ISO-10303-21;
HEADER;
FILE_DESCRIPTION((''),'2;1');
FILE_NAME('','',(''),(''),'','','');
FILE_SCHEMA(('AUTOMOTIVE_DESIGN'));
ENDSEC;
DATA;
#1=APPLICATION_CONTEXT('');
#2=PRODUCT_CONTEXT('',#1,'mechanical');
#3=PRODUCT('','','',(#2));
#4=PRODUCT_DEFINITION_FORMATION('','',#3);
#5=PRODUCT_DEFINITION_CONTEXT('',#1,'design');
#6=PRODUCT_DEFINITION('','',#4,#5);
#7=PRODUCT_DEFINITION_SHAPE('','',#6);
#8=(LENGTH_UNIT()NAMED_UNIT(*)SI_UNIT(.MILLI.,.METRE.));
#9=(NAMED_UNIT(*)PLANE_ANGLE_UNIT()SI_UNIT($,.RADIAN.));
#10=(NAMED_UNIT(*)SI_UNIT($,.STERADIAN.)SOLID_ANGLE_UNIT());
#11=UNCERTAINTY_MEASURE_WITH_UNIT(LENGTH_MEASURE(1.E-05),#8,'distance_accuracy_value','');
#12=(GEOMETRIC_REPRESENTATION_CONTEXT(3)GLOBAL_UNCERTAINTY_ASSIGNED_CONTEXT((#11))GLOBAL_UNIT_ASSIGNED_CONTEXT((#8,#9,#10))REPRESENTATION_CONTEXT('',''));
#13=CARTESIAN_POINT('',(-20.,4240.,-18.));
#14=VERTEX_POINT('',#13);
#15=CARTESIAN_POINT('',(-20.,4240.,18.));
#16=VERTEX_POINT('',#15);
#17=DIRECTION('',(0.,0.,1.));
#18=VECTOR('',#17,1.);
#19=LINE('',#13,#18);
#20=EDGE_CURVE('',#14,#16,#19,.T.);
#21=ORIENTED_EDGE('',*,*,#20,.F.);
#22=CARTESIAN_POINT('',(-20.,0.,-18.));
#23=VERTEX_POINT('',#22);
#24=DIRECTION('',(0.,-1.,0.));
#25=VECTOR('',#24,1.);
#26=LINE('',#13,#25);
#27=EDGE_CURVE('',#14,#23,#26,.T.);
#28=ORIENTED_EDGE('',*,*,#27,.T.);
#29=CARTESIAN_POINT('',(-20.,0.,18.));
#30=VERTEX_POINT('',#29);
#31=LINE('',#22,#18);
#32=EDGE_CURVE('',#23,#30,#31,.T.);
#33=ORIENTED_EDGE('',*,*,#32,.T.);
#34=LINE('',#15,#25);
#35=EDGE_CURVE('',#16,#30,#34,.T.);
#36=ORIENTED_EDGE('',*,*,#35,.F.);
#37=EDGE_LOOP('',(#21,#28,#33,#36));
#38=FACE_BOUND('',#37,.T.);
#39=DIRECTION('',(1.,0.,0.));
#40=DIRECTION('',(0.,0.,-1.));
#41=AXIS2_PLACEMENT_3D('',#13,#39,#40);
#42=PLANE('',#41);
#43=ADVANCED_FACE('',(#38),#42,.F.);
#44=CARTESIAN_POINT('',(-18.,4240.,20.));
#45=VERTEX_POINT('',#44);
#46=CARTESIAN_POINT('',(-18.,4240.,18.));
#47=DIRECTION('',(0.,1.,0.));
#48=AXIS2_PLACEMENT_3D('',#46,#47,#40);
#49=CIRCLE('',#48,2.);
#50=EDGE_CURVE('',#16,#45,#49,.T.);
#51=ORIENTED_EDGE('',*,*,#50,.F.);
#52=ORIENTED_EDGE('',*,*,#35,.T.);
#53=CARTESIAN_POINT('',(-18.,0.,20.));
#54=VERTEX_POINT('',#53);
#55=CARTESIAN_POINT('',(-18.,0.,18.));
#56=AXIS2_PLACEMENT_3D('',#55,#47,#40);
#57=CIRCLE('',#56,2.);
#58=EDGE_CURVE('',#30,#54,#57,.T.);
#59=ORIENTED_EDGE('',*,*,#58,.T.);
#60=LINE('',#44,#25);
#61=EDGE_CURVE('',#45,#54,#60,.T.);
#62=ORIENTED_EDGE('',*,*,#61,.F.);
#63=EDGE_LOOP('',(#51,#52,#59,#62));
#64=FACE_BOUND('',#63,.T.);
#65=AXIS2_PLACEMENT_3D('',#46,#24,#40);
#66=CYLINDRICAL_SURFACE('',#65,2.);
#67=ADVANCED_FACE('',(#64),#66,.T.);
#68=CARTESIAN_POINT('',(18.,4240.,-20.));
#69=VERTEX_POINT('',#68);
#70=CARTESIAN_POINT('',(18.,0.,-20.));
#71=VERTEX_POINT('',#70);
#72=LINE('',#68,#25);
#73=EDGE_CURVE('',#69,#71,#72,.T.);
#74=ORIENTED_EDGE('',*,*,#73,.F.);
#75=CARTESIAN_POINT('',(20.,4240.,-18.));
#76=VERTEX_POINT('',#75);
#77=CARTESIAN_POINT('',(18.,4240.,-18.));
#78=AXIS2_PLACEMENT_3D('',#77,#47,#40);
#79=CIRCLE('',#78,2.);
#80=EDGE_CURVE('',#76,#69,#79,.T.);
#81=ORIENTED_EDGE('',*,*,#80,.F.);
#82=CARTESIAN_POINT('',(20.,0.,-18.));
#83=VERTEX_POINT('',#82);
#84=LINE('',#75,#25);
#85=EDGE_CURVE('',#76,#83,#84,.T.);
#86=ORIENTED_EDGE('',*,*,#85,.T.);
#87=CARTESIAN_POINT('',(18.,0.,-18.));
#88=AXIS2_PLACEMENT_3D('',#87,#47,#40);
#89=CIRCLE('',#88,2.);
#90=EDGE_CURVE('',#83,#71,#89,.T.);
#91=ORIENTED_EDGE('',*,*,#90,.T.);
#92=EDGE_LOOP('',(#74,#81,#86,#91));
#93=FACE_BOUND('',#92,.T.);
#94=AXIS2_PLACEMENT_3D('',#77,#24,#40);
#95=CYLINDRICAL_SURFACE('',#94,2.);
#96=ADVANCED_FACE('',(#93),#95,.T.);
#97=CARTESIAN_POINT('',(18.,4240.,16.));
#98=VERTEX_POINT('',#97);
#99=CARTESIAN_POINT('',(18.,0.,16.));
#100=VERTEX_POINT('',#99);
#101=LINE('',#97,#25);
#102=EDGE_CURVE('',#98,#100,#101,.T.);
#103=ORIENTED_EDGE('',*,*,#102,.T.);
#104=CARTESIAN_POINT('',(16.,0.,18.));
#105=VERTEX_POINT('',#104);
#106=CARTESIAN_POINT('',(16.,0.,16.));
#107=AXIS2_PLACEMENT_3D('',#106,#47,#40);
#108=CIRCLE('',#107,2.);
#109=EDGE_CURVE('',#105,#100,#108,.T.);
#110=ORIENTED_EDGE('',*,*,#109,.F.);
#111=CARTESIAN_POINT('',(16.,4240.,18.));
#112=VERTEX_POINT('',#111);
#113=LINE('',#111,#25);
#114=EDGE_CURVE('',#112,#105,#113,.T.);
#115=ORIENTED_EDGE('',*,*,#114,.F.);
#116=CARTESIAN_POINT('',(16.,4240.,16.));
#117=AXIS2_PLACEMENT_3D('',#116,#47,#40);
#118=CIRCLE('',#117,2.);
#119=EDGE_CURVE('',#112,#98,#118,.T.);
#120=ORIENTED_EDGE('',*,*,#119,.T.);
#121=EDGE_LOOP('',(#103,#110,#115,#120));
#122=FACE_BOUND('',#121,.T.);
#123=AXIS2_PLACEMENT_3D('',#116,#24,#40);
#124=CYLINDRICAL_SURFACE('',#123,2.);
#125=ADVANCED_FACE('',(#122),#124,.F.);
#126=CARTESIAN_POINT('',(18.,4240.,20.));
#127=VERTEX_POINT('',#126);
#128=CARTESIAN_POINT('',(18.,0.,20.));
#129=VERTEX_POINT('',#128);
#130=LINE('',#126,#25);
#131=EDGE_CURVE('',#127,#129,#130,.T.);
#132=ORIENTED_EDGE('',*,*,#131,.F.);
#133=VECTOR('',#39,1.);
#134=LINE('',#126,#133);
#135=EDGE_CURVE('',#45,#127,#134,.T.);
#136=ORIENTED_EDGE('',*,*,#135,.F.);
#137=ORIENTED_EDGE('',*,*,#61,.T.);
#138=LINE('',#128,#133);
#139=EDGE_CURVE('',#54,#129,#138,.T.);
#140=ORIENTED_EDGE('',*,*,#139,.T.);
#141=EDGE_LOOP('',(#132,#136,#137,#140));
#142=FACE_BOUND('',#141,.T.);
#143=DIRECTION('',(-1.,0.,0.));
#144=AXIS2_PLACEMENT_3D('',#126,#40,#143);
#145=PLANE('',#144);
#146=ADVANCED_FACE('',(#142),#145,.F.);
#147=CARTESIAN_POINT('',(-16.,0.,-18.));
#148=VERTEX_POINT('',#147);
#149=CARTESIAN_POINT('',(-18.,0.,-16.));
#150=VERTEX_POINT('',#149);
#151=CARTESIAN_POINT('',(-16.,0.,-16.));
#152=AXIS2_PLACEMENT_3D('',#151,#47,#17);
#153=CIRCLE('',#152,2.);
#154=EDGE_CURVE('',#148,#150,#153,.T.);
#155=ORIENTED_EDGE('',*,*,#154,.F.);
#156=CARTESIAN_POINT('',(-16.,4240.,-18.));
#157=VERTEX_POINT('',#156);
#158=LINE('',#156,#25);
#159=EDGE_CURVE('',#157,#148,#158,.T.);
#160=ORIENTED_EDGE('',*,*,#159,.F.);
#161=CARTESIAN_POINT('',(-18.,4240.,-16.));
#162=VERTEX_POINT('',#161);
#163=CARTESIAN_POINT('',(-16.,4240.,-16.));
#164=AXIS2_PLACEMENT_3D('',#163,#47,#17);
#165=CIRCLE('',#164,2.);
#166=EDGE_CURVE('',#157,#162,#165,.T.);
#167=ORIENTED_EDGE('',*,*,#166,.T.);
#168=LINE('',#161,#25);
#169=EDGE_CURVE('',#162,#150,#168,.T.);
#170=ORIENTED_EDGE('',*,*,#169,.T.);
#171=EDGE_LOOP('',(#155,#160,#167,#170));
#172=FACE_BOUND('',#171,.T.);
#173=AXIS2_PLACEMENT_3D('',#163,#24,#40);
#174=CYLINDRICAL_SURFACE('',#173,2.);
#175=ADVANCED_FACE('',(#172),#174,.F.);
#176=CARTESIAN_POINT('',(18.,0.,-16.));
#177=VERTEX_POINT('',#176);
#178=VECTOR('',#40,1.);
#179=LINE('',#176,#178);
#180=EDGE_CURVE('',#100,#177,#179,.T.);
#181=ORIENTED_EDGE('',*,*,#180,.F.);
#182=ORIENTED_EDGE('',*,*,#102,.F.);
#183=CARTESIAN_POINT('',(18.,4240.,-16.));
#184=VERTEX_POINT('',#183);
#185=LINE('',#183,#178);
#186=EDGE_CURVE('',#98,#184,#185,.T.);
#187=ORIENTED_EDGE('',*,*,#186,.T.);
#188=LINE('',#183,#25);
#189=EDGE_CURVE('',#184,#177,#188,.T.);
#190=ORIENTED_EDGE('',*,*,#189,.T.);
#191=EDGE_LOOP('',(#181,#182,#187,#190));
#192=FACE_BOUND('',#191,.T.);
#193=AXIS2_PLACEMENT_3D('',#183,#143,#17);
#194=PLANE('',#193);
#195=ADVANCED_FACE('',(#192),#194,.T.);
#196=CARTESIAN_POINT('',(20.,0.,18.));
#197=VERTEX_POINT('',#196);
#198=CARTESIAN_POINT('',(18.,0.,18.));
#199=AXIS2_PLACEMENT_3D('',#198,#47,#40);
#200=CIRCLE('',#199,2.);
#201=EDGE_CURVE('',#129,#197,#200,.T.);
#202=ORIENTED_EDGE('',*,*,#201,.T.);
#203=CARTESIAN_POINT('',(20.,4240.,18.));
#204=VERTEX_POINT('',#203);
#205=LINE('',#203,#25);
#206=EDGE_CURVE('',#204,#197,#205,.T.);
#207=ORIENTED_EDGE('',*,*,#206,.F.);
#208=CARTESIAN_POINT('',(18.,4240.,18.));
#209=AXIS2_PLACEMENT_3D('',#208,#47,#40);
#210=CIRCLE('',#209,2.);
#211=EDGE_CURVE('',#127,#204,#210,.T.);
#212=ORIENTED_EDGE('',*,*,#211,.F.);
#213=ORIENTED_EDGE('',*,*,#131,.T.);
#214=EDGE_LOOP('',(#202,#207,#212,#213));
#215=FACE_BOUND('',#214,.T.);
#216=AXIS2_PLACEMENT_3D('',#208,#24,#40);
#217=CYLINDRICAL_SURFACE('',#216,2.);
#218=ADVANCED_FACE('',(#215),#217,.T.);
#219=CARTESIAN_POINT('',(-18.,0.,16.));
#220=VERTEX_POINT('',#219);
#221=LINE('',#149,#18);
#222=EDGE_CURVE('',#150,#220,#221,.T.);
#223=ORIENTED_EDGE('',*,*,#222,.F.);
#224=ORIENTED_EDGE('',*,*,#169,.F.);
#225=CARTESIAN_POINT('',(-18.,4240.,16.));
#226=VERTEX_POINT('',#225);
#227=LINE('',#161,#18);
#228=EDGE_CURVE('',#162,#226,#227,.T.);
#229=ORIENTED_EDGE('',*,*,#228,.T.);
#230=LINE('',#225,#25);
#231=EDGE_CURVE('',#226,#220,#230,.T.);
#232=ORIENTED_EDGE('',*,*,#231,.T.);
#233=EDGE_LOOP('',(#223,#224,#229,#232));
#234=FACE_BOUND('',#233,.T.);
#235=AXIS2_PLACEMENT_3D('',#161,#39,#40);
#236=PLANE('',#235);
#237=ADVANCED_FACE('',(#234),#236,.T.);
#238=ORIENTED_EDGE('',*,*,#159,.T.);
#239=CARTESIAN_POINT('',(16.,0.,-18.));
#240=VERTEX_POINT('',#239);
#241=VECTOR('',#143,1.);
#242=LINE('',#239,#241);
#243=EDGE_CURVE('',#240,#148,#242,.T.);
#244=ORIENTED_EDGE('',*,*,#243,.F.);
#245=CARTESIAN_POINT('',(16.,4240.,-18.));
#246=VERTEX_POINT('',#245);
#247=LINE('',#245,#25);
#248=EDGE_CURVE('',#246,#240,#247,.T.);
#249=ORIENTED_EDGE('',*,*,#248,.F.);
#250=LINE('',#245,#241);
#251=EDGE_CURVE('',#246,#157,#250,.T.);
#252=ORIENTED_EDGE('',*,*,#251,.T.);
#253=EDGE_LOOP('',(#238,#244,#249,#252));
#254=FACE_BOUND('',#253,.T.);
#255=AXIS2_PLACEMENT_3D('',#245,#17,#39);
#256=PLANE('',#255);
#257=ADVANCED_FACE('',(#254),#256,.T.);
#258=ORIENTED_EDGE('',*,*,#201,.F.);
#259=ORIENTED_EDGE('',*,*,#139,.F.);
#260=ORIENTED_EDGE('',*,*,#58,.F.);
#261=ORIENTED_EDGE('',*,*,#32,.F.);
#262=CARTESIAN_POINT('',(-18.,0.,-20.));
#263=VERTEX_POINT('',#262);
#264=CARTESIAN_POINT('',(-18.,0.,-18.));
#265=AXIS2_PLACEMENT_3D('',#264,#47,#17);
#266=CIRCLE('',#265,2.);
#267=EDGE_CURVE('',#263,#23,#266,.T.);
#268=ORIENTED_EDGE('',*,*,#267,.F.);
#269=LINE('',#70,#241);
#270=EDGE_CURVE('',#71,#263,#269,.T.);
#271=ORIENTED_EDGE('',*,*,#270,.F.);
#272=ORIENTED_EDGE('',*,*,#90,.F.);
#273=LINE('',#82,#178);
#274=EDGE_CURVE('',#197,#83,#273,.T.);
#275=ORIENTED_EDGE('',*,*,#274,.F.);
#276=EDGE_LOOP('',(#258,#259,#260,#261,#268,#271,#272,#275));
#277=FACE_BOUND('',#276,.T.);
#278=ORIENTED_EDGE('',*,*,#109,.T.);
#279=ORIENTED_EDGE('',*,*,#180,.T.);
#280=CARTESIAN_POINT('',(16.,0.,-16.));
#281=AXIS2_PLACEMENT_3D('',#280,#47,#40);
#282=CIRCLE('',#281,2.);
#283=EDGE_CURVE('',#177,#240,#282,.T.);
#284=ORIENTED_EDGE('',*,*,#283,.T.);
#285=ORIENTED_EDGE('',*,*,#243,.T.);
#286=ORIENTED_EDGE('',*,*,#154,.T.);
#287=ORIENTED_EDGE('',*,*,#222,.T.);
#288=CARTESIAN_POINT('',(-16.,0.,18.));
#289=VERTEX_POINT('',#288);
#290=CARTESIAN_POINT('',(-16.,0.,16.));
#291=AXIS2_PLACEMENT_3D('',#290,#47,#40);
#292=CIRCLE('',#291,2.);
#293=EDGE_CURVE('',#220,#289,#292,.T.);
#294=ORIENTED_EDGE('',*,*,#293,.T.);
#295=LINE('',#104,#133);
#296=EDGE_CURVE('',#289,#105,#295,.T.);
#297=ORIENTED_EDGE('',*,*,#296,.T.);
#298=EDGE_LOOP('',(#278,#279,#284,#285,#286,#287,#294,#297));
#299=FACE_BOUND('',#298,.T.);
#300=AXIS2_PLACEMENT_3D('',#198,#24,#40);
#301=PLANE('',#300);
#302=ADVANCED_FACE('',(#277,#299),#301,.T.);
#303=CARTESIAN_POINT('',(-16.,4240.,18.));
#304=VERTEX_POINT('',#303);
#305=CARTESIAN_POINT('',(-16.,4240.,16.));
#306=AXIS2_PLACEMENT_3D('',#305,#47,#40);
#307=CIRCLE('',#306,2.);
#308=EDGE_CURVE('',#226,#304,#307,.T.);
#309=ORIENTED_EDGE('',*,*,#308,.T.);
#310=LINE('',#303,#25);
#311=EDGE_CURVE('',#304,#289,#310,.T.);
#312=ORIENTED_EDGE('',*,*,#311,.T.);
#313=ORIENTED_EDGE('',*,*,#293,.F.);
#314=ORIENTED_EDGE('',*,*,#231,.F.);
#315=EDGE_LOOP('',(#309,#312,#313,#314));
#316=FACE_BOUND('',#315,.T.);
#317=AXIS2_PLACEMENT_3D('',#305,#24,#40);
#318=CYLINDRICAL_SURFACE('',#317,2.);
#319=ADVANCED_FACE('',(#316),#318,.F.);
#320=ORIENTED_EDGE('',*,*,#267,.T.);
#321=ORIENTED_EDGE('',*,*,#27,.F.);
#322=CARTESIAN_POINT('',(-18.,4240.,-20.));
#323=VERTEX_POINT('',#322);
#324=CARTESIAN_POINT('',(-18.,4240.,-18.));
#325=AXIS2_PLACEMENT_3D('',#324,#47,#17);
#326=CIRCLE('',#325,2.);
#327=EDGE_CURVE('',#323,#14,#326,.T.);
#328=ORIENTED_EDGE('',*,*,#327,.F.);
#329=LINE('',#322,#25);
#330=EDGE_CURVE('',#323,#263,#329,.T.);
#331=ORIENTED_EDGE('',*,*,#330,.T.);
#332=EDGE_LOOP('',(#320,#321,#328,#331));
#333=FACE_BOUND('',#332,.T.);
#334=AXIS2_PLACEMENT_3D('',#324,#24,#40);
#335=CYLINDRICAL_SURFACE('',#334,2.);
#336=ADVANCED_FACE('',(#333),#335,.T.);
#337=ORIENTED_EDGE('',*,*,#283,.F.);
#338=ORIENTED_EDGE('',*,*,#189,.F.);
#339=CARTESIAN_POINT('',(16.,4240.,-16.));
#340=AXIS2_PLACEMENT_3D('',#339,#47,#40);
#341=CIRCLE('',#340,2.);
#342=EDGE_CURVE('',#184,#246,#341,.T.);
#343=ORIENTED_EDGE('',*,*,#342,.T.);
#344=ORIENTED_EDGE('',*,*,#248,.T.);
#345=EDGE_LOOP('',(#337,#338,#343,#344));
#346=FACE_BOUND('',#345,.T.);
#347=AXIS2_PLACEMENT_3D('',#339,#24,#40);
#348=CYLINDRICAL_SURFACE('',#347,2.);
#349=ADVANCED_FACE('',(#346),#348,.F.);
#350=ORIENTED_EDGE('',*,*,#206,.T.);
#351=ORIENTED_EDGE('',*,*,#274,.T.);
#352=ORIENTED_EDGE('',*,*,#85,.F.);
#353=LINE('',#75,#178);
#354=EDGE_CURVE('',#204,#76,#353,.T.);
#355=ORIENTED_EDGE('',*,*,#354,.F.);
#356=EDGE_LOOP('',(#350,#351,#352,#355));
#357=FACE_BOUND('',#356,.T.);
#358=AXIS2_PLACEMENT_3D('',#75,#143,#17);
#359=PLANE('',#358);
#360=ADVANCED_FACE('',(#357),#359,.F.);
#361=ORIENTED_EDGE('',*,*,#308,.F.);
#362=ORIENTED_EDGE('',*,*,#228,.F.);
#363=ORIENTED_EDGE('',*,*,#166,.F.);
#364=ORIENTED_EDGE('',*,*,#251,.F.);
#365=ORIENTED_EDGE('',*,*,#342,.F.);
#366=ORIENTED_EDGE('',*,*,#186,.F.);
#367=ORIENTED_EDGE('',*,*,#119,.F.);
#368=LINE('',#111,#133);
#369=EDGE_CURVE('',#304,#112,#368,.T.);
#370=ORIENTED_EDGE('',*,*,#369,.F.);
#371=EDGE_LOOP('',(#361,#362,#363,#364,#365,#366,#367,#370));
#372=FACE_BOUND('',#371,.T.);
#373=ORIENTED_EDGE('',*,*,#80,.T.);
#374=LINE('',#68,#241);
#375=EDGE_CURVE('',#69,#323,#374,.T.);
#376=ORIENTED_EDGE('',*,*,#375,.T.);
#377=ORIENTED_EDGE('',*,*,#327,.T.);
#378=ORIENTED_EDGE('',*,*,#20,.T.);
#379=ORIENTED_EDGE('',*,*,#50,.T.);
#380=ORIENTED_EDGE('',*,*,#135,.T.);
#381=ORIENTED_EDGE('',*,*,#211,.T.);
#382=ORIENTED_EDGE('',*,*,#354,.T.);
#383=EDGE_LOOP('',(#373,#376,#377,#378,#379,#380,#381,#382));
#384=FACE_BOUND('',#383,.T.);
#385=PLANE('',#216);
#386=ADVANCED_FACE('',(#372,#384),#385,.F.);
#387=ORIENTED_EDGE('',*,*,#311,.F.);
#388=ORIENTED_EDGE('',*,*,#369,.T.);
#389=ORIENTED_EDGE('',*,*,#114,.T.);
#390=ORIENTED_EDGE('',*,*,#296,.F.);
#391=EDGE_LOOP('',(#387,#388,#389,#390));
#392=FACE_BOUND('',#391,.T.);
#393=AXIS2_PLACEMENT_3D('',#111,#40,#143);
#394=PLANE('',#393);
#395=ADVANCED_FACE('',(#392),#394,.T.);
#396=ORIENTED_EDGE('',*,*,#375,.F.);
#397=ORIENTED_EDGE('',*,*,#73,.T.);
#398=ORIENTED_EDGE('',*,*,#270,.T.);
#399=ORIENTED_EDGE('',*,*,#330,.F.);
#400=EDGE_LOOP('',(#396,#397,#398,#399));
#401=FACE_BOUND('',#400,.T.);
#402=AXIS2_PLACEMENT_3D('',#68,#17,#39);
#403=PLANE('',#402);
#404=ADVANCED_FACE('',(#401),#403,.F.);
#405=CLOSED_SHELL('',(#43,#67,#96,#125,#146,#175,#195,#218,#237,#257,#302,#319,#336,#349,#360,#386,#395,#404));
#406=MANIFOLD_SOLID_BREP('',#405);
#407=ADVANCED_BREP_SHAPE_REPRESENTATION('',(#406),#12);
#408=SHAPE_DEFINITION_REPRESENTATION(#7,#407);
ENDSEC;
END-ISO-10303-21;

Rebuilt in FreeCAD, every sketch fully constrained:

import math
import FreeCAD as App
import Part
import Sketcher

V = App.Vector
Q = App.Units.Quantity

doc = App.newDocument("Part")
body = doc.addObject("PartDesign::Body", "Body")

# Sketch on XZ plane
sketch1 = body.newObject("Sketcher::SketchObject", "Sketch")
sketch1.AttachmentSupport = (doc.getObject("XZ_Plane"), [""])
sketch1.MapMode = "FlatFace"
sketch1.addGeometry(Part.LineSegment(V(18, -20, 0), V(-18, -20, 0)), False)
sketch1.addGeometry(Part.ArcOfCircle(Part.Circle(V(-18, -18, 0), V(0, 0, 1), 2), math.radians(-180), math.radians(-90)), False)
sketch1.addGeometry(Part.LineSegment(V(-20, -18, 0), V(-20, 18, 0)), False)
sketch1.addGeometry(Part.ArcOfCircle(Part.Circle(V(-18, 18, 0), V(0, 0, 1), 2), math.radians(90), math.radians(180)), False)
sketch1.addGeometry(Part.LineSegment(V(-18, 20, 0), V(18, 20, 0)), False)
sketch1.addGeometry(Part.ArcOfCircle(Part.Circle(V(18, 18, 0), V(0, 0, 1), 2), math.radians(0), math.radians(90)), False)
sketch1.addGeometry(Part.LineSegment(V(20, 18, 0), V(20, -18, 0)), False)
sketch1.addGeometry(Part.ArcOfCircle(Part.Circle(V(18, -18, 0), V(0, 0, 1), 2), math.radians(-90), math.radians(0)), False)
sketch1.addGeometry(Part.LineSegment(V(-16, -18, 0), V(16, -18, 0)), False)
sketch1.addGeometry(Part.ArcOfCircle(Part.Circle(V(16, -16, 0), V(0, 0, 1), 2), math.radians(-90), math.radians(0)), False)
sketch1.addGeometry(Part.LineSegment(V(18, -16, 0), V(18, 16, 0)), False)
sketch1.addGeometry(Part.ArcOfCircle(Part.Circle(V(16, 16, 0), V(0, 0, 1), 2), math.radians(0), math.radians(90)), False)
sketch1.addGeometry(Part.LineSegment(V(16, 18, 0), V(-16, 18, 0)), False)
sketch1.addGeometry(Part.ArcOfCircle(Part.Circle(V(-16, 16, 0), V(0, 0, 1), 2), math.radians(90), math.radians(180)), False)
sketch1.addGeometry(Part.LineSegment(V(-18, 16, 0), V(-18, -16, 0)), False)
sketch1.addGeometry(Part.ArcOfCircle(Part.Circle(V(-16, -16, 0), V(0, 0, 1), 2), math.radians(-180), math.radians(-90)), False)
sketch1.addConstraint(Sketcher.Constraint("Tangent", 0, 2, 1, 2))
sketch1.addConstraint(Sketcher.Constraint("Tangent", 1, 1, 2, 1))
sketch1.addConstraint(Sketcher.Constraint("Tangent", 2, 2, 3, 2))
sketch1.addConstraint(Sketcher.Constraint("Tangent", 3, 1, 4, 1))
sketch1.addConstraint(Sketcher.Constraint("Tangent", 4, 2, 5, 2))
sketch1.addConstraint(Sketcher.Constraint("Tangent", 5, 1, 6, 1))
sketch1.addConstraint(Sketcher.Constraint("Tangent", 6, 2, 7, 2))
sketch1.addConstraint(Sketcher.Constraint("Tangent", 7, 1, 0, 1))
sketch1.addConstraint(Sketcher.Constraint("Tangent", 8, 2, 9, 1))
sketch1.addConstraint(Sketcher.Constraint("Tangent", 9, 2, 10, 1))
sketch1.addConstraint(Sketcher.Constraint("Tangent", 10, 2, 11, 1))
sketch1.addConstraint(Sketcher.Constraint("Tangent", 11, 2, 12, 1))
sketch1.addConstraint(Sketcher.Constraint("Tangent", 12, 2, 13, 1))
sketch1.addConstraint(Sketcher.Constraint("Tangent", 13, 2, 14, 1))
sketch1.addConstraint(Sketcher.Constraint("Tangent", 14, 2, 15, 1))
sketch1.addConstraint(Sketcher.Constraint("Tangent", 15, 2, 8, 1))
sketch1.addConstraint(Sketcher.Constraint("Horizontal", 0))
sketch1.addConstraint(Sketcher.Constraint("Vertical", 2))
sketch1.addConstraint(Sketcher.Constraint("Horizontal", 4))
sketch1.addConstraint(Sketcher.Constraint("Vertical", 6))
sketch1.addConstraint(Sketcher.Constraint("Horizontal", 8))
sketch1.addConstraint(Sketcher.Constraint("Vertical", 10))
sketch1.addConstraint(Sketcher.Constraint("Horizontal", 12))
sketch1.addConstraint(Sketcher.Constraint("Vertical", 14))
sketch1.addConstraint(Sketcher.Constraint("Equal", 1, 3))
sketch1.addConstraint(Sketcher.Constraint("Equal", 3, 5))
sketch1.addConstraint(Sketcher.Constraint("Equal", 5, 7))
sketch1.addConstraint(Sketcher.Constraint("Equal", 7, 9))
sketch1.addConstraint(Sketcher.Constraint("Equal", 9, 11))
sketch1.addConstraint(Sketcher.Constraint("Equal", 11, 13))
sketch1.addConstraint(Sketcher.Constraint("Equal", 13, 15))
sketch1.addConstraint(Sketcher.Constraint("Symmetric", 1, 3, 5, 3, -1, 1))
sketch1.addConstraint(Sketcher.Constraint("Symmetric", 9, 3, 13, 3, -1, 1))
sketch1.addConstraint(Sketcher.Constraint("Horizontal", 6, 2, 8, 2))
sketch1.addConstraint(Sketcher.Constraint("Vertical", 7, 1, 9, 2))
sketch1.addConstraint(Sketcher.Constraint("Equal", 4, 2))
sketch1.addConstraint(Sketcher.Constraint("Radius", 1, Q("2 mm")))
sketch1.addConstraint(Sketcher.Constraint("DistanceX", 0, 2, 0, 1, Q("36 mm")))
pad1 = body.newObject("PartDesign::Pad", "Pad")
pad1.Profile = sketch1
pad1.Length = 4240
pad1.Reversed = True

doc.recompute()
